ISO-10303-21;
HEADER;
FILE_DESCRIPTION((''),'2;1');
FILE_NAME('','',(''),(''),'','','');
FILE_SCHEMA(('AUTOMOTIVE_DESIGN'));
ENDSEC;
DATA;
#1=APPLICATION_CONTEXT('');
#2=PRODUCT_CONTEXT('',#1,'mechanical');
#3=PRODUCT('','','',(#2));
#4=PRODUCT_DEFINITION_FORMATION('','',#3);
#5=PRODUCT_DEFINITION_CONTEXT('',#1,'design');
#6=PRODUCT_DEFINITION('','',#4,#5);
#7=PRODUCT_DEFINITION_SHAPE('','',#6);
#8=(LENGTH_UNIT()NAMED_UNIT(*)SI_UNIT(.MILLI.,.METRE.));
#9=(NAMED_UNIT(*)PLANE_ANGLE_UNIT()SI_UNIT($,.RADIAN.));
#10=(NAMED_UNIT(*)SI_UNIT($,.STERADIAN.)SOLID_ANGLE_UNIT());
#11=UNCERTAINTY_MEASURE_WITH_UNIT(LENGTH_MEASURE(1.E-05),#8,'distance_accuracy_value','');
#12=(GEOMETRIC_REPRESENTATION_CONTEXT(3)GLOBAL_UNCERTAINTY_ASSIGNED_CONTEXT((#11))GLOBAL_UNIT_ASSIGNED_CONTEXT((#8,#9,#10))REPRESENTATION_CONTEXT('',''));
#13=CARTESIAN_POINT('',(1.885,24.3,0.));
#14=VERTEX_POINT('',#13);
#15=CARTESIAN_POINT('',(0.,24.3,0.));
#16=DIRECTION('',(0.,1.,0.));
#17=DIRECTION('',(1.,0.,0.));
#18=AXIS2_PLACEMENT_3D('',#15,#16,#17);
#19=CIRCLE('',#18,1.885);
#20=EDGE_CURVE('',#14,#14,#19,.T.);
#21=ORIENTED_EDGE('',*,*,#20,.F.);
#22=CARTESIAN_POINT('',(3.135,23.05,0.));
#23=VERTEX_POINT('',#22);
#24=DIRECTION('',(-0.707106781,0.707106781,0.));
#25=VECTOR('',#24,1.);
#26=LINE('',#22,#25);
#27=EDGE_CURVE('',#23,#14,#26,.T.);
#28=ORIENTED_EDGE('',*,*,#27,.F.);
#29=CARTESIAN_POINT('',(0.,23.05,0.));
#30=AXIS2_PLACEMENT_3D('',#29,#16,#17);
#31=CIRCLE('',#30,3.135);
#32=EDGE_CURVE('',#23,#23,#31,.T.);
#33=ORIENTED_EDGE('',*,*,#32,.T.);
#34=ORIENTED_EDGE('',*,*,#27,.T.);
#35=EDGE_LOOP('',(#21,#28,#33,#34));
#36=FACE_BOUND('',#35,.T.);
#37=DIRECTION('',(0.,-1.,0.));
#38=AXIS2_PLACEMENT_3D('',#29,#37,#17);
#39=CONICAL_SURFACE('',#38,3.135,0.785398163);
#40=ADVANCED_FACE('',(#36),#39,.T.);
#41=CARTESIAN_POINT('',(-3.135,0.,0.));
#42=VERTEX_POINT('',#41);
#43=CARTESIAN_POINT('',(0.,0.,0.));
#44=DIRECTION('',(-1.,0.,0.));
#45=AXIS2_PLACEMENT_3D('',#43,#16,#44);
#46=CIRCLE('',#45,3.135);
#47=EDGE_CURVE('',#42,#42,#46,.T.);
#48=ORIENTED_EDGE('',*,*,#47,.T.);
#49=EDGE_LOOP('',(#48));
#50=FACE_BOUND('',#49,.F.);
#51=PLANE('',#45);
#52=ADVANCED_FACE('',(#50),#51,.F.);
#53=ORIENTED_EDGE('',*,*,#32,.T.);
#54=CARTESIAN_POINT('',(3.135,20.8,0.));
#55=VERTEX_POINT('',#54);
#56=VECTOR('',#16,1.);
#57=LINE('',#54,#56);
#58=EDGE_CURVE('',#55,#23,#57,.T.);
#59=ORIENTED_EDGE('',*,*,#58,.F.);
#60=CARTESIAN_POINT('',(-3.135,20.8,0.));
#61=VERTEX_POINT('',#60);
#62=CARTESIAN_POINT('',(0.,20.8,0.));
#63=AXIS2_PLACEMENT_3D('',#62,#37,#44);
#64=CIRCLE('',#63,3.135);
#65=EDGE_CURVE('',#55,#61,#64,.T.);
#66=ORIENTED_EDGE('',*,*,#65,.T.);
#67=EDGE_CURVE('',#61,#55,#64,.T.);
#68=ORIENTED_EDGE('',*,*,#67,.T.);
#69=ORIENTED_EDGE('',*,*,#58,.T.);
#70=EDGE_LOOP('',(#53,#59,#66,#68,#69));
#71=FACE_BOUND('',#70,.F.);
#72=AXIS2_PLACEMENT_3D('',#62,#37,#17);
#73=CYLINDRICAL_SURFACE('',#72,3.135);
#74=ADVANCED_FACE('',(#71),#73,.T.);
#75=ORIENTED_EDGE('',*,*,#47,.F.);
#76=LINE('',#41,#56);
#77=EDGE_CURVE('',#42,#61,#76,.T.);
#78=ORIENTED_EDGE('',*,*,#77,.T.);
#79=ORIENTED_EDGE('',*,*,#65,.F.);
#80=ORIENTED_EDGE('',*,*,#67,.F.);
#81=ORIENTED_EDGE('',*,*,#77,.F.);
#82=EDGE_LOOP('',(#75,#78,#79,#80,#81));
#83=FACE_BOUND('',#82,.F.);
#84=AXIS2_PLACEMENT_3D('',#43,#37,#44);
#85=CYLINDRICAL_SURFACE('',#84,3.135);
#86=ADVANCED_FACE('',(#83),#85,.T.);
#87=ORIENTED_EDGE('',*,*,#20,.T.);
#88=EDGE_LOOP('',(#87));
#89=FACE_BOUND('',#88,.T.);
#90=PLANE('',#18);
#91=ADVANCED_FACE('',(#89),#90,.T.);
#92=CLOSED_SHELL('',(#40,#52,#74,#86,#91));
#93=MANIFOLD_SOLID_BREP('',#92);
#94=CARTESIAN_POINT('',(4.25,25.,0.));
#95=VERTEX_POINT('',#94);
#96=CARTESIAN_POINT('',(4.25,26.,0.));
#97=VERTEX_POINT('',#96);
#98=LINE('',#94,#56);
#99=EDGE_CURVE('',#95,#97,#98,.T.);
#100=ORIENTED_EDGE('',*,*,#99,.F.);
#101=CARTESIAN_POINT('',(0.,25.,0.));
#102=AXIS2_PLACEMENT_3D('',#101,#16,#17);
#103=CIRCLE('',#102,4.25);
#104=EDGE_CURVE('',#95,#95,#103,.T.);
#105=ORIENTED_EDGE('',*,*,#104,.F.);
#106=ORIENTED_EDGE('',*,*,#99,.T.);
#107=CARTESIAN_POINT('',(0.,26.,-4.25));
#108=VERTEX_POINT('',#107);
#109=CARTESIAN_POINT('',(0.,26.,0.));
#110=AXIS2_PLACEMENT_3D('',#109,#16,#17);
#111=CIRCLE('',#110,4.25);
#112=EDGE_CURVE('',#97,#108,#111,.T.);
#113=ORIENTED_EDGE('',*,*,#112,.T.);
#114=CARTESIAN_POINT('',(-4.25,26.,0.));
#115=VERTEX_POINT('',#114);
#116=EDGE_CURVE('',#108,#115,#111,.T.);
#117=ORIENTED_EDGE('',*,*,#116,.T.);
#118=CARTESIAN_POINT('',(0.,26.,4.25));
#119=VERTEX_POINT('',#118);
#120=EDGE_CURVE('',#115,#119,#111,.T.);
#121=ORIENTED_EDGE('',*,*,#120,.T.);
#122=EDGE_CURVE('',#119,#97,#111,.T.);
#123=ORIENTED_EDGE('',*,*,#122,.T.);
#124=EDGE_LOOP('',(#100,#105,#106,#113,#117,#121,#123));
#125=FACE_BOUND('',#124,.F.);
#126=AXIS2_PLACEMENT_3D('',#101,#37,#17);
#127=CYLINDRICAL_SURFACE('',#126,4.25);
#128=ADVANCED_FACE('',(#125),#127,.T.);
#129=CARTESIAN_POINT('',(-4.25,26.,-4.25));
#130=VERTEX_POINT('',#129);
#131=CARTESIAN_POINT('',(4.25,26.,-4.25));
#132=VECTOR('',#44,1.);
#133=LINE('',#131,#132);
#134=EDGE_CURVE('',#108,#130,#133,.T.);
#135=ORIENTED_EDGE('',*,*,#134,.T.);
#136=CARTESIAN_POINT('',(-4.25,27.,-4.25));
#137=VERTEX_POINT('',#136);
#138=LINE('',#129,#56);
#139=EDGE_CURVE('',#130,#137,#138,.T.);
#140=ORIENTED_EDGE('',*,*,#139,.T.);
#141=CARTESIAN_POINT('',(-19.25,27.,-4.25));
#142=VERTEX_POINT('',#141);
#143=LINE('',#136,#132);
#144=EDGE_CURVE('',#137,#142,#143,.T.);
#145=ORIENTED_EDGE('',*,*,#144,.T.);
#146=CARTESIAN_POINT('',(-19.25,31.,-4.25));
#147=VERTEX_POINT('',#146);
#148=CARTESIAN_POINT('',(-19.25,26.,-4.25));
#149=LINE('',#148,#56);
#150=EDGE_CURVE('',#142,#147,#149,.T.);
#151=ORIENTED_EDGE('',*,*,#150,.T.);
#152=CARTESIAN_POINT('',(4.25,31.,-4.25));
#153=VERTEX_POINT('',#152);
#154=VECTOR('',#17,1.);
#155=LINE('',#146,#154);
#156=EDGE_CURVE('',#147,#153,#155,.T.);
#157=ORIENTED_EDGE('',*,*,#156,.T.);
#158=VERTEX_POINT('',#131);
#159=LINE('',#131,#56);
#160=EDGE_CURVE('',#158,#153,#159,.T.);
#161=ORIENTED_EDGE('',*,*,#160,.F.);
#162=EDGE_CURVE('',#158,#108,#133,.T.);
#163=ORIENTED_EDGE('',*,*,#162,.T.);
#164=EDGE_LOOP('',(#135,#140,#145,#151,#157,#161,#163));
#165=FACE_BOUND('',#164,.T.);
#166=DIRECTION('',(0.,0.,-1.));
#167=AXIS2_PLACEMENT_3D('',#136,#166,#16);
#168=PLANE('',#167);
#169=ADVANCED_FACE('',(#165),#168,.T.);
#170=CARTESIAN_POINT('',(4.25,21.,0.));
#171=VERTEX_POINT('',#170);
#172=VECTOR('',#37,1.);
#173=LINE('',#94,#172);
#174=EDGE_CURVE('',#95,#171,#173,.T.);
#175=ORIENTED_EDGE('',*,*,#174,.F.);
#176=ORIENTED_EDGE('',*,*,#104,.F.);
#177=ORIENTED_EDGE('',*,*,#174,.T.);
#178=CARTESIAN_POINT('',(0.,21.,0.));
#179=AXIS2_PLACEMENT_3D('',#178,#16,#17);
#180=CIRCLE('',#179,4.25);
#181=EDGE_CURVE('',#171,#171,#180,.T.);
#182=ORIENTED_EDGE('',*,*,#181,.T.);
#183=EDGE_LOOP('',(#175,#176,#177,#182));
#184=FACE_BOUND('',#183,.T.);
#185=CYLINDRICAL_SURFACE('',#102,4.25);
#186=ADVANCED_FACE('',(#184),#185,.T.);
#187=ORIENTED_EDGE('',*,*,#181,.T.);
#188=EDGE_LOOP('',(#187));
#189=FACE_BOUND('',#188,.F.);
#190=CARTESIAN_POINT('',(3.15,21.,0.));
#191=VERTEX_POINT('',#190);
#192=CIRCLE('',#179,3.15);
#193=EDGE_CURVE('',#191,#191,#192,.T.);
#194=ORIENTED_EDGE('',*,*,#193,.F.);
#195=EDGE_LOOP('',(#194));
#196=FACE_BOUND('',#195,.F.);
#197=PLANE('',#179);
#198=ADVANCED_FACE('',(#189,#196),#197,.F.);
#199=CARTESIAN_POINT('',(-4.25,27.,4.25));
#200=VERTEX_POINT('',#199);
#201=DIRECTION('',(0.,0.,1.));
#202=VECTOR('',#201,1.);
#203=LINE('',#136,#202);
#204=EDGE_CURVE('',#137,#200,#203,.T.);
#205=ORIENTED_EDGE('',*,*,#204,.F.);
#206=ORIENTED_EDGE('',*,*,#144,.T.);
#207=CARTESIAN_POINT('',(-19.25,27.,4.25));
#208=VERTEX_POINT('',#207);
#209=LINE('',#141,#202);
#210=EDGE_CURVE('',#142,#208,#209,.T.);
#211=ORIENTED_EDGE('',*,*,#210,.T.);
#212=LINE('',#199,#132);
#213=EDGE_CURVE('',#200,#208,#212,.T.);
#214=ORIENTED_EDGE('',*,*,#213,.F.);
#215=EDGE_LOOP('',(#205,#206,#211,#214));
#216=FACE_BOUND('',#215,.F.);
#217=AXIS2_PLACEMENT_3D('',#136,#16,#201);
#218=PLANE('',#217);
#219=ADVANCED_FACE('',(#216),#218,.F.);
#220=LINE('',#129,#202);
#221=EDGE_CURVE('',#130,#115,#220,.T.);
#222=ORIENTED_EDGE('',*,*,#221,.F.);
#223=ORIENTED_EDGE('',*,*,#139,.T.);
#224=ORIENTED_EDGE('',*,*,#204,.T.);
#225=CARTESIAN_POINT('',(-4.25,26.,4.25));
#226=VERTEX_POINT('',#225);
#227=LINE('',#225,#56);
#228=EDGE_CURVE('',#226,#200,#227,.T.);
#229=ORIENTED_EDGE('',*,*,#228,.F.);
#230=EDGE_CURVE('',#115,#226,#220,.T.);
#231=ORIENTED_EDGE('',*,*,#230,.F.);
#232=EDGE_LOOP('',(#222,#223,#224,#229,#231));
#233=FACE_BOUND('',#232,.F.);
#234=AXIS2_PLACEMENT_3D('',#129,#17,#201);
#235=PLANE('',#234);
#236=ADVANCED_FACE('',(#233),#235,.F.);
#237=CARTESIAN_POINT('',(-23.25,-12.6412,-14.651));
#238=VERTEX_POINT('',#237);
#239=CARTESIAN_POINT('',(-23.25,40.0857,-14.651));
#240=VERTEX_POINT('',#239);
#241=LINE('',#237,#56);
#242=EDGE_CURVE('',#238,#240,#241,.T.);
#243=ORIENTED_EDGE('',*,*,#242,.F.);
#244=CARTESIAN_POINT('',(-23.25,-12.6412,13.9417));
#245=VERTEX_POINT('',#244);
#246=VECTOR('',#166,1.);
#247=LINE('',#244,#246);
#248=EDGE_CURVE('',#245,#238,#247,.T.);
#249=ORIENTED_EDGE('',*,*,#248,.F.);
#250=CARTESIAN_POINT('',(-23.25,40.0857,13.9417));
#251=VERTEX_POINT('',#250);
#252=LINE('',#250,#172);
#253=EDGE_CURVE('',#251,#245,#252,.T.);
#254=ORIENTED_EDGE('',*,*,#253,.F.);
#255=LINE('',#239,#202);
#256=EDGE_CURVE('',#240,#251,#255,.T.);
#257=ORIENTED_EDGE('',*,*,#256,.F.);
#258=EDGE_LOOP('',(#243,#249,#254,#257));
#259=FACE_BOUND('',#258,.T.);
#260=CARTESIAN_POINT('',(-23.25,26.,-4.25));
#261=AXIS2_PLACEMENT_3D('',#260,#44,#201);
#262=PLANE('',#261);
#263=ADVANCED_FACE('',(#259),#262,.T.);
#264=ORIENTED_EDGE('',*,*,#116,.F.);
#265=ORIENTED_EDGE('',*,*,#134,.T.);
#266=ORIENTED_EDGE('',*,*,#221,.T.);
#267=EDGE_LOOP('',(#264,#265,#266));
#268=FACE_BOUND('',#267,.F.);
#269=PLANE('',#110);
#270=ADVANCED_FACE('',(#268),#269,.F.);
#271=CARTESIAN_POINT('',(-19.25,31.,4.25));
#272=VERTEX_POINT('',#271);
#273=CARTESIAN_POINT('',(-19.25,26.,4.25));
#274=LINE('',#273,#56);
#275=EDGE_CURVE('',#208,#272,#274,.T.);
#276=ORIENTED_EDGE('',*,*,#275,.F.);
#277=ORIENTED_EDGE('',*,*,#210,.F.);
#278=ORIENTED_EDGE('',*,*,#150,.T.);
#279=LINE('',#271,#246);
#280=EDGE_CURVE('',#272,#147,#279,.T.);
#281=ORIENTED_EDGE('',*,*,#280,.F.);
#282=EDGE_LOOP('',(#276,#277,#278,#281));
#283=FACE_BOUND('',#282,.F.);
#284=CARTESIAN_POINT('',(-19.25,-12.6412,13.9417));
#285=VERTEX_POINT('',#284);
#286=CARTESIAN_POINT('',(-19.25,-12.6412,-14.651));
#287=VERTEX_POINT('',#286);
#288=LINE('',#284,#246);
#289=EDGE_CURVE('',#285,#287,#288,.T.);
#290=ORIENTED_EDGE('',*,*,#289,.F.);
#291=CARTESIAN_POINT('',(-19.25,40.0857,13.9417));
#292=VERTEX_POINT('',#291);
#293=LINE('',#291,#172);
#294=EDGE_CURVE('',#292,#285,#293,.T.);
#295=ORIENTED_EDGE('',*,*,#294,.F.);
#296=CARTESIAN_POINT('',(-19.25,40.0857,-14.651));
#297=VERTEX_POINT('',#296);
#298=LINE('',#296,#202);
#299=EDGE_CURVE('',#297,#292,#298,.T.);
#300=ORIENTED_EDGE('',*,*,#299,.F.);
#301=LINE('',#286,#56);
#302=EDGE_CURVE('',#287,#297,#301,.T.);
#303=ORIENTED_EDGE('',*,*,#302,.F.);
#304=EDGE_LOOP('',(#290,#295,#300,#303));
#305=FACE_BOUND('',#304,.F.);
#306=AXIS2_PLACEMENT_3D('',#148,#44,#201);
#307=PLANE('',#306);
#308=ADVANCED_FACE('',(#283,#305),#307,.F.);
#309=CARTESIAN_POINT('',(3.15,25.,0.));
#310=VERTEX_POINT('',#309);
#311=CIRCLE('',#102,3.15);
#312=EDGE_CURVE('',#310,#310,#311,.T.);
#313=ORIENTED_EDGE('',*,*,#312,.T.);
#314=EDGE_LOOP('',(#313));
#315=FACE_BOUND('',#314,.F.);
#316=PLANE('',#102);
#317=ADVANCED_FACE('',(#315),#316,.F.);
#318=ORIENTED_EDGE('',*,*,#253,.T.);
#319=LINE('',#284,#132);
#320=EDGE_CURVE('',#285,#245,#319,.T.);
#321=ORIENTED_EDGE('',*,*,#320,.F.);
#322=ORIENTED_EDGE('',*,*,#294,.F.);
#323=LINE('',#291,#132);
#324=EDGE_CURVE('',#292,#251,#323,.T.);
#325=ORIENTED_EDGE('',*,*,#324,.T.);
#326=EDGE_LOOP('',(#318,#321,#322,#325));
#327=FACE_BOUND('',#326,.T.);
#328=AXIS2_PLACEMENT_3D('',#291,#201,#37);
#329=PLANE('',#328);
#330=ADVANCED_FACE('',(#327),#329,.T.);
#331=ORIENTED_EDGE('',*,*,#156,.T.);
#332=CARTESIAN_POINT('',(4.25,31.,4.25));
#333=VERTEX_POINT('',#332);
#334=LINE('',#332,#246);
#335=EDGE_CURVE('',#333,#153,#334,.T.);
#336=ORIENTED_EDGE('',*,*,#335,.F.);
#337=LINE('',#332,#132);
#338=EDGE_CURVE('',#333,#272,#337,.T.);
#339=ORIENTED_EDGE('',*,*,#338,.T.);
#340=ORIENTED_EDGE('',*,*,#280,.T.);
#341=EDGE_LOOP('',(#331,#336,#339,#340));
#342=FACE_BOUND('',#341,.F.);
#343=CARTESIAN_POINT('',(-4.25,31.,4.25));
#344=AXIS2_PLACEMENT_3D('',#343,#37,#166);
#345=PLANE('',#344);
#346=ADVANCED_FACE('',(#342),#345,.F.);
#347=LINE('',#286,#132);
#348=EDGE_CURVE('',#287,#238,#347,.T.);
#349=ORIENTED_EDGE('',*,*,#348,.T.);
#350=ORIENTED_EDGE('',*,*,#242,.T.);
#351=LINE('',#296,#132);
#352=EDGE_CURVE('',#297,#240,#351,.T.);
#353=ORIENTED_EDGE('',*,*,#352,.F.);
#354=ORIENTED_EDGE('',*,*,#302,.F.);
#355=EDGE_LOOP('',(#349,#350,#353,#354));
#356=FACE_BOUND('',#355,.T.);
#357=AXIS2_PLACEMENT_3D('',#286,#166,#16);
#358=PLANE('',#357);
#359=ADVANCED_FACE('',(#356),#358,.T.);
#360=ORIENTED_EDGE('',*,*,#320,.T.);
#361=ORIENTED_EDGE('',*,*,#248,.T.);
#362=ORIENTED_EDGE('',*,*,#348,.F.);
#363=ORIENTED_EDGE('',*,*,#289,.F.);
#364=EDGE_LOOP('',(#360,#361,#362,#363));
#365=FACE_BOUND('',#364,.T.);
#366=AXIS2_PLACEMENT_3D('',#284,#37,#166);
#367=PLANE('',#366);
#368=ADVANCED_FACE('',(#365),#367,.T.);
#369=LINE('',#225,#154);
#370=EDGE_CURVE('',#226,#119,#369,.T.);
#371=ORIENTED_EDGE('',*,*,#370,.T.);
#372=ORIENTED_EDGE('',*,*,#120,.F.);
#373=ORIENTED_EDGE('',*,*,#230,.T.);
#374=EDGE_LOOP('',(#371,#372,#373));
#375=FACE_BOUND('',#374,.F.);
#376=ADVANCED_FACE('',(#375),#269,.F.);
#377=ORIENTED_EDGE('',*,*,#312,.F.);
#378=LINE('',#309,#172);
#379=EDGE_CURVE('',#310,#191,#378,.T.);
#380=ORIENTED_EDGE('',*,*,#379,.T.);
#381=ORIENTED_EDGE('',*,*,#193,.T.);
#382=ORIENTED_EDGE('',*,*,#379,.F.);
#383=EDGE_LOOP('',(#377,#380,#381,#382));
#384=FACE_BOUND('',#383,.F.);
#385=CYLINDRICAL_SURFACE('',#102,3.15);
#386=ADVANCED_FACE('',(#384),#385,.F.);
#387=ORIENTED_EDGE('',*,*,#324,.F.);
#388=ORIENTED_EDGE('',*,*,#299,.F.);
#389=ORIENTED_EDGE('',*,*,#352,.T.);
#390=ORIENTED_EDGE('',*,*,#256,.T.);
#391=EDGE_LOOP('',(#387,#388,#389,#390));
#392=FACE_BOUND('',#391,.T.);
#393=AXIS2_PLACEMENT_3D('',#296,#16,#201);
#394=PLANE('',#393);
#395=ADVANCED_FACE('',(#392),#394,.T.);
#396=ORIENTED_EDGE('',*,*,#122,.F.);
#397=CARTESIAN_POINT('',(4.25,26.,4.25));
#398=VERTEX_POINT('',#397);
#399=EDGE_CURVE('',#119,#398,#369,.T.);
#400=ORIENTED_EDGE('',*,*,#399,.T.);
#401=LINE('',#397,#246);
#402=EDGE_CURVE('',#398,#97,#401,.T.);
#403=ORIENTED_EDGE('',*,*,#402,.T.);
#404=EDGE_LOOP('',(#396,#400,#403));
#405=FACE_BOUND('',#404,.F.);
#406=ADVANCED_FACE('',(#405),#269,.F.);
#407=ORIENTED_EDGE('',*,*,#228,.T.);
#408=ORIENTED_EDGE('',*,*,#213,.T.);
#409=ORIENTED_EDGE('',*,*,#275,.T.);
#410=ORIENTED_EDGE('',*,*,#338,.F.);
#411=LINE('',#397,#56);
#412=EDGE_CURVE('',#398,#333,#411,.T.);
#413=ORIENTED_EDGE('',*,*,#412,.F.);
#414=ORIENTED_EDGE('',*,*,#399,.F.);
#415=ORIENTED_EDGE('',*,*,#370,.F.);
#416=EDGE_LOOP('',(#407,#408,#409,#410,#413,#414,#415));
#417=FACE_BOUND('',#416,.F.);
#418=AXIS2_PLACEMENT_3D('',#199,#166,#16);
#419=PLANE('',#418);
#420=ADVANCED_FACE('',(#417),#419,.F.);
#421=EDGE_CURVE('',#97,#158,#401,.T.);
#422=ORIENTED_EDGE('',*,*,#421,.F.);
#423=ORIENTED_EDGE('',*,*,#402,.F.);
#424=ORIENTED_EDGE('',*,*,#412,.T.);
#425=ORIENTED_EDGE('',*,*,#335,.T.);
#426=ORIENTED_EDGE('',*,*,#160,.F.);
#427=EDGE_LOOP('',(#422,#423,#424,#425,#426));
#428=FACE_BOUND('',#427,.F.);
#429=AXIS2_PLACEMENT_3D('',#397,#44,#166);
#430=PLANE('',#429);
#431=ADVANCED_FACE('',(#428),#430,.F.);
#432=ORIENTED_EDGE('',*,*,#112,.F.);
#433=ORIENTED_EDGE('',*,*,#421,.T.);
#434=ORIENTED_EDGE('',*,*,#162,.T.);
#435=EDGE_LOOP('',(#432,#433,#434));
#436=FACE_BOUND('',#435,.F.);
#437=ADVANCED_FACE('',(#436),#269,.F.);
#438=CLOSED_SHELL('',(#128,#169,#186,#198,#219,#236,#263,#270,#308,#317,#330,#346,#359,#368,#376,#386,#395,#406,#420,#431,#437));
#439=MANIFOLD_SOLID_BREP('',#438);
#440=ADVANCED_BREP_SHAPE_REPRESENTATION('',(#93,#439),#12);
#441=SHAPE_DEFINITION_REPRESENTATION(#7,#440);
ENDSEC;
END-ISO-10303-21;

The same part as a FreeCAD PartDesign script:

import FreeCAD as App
import Part
import Sketcher

V = App.Vector
Q = App.Units.Quantity


def edges_at(feature, points):
    """Names of the edges that pass closest to the given points."""
    edges = feature.Shape.Edges
    near = lambda p: min(range(len(edges)), key=lambda i: edges[i].distToShape(Part.Vertex(*p))[0])
    return sorted({f"Edge{near(p) + 1}" for p in points})


def add_polygon(sketch, points):
    """Adds a closed chain of lines whose ends are joined by coincident constraints."""
    first, n = sketch.GeometryCount, len(points)
    for a, b in zip(points, points[1:] + points[:1]):
        sketch.addGeometry(Part.LineSegment(App.Vector(*a, 0), App.Vector(*b, 0)), False)
    for i in range(n):
        sketch.addConstraint(Sketcher.Constraint("Coincident", first + i, 2, first + (i + 1) % n, 1))

doc = App.newDocument("Part")
body = doc.addObject("PartDesign::Body", "Body")
body.AllowCompound = True

# Sketch on XZ plane
sketch1 = body.newObject("Sketcher::SketchObject", "Sketch")
sketch1.AttachmentSupport = (doc.getObject("XZ_Plane"), [""])
sketch1.MapMode = "FlatFace"
sketch1.addGeometry(Part.Circle(V(0, 0, 0), V(0, 0, 1), 3.1), False)
sketch1.addConstraint([
    Sketcher.Constraint("Coincident", 0, 3, -1, 1),
    Sketcher.Constraint("Diameter", 0, Q("6.27 mm")),
])
pad1 = body.newObject("PartDesign::Pad", "Pad")
pad1.Profile = sketch1
pad1.Length = 25
pad1.Reversed = True

# Sketch on XZ plane
sketch2 = body.newObject("Sketcher::SketchObject", "Sketch001")
sketch2.AttachmentSupport = (doc.getObject("XZ_Plane"), [""])
sketch2.MapMode = "FlatFace"
sketch2.AttachmentOffset = App.Placement(V(0, 0, -25), App.Rotation())
sketch2.addGeometry(Part.Circle(V(0, 0, 0), V(0, 0, 1), 4.2), False)
sketch2.addConstraint([
    Sketcher.Constraint("Coincident", 0, 3, -1, 1),
    Sketcher.Constraint("Diameter", 0, Q("8.5 mm")),
])
pad2 = body.newObject("PartDesign::Pad", "Pad001")
pad2.Profile = sketch2
pad2.Length = 4

# Sketch on XZ plane
sketch3 = body.newObject("Sketcher::SketchObject", "Sketch002")
sketch3.AttachmentSupport = (doc.getObject("XZ_Plane"), [""])
sketch3.MapMode = "FlatFace"
sketch3.AttachmentOffset = App.Placement(V(0, 0, -25), App.Rotation())
sketch3.addGeometry(Part.Circle(V(0, 0, 0), V(0, 0, 1), 3.1), False)
sketch3.addConstraint([
    Sketcher.Constraint("Coincident", 0, 3, -1, 1),
    Sketcher.Constraint("Diameter", 0, Q("6.3 mm")),
])
pocket1 = body.newObject("PartDesign::Pocket", "Pocket")
pocket1.Profile = sketch3
pocket1.Length = 4.2
pocket1.Reversed = True

# Sketch on XZ plane
sketch4 = body.newObject("Sketcher::SketchObject", "Sketch003")
sketch4.AttachmentSupport = (doc.getObject("XZ_Plane"), [""])
sketch4.MapMode = "FlatFace"
sketch4.AttachmentOffset = App.Placement(V(0, 0, -20.8), App.Rotation())
sketch4.addGeometry(Part.Circle(V(0, 0, 0), V(0, 0, 1), 3.1), False)
sketch4.addConstraint([
    Sketcher.Constraint("Coincident", 0, 3, -1, 1),
    Sketcher.Constraint("Diameter", 0, Q("6.27 mm")),
])
pad3 = body.newObject("PartDesign::Pad", "Pad002")
pad3.Profile = sketch4
pad3.Length = 3.5
pad3.Reversed = True
doc.recompute()

chamfer = body.newObject("PartDesign::Chamfer", "Chamfer")
chamfer.Base = (pad3, edges_at(pad3, [(-3.135, 24.3, 0)]))
chamfer.Size = 1.25

# Sketch on XZ plane
sketch5 = body.newObject("Sketcher::SketchObject", "Sketch004")
sketch5.AttachmentSupport = (doc.getObject("XZ_Plane"), [""])
sketch5.MapMode = "FlatFace"
sketch5.AttachmentOffset = App.Placement(V(0, 0, -25), App.Rotation())
sketch5.addGeometry(Part.Circle(V(0, 0, 0), V(0, 0, 1), 4.2), False)
sketch5.addConstraint([
    Sketcher.Constraint("Coincident", 0, 3, -1, 1),
    Sketcher.Constraint("Diameter", 0, Q("8.5 mm")),
])
pad4 = body.newObject("PartDesign::Pad", "Pad003")
pad4.Profile = sketch5
pad4.Length = 1
pad4.Reversed = True

# Sketch on XZ plane
sketch6 = body.newObject("Sketcher::SketchObject", "Sketch005")
sketch6.AttachmentSupport = (doc.getObject("XZ_Plane"), [""])
sketch6.MapMode = "FlatFace"
sketch6.AttachmentOffset = App.Placement(V(0, 0, -26), App.Rotation())
add_polygon(sketch6, [(4, 4), (4, -4), (-4, -4), (-4, 4)])  # lines 0-3
sketch6.addConstraint([
    Sketcher.Constraint("Vertical", 0),
    Sketcher.Constraint("Horizontal", 1),
    Sketcher.Constraint("Vertical", 2),
    Sketcher.Constraint("Horizontal", 3),
    Sketcher.Constraint("Symmetric", 0, 2, 2, 2, -1, 1),
    Sketcher.Constraint("Equal", 3, 0),
    Sketcher.Constraint("DistanceX", 1, 2, 1, 1, Q("8.5 mm")),
])
pad5 = body.newObject("PartDesign::Pad", "Pad004")
pad5.Profile = sketch6
pad5.Length = 5
pad5.Reversed = True

# Sketch on YZ plane
sketch7 = body.newObject("Sketcher::SketchObject", "Sketch006")
sketch7.AttachmentSupport = (doc.getObject("YZ_Plane"), [""])
sketch7.MapMode = "FlatFace"
sketch7.AttachmentOffset = App.Placement(V(0, 0, -4.25), App.Rotation())
add_polygon(sketch7, [(27, -4.2), (27, 4.2), (31, 4.2), (31, -4.2)])  # lines 0-3
sketch7.addConstraint([
    Sketcher.Constraint("Vertical", 0),
    Sketcher.Constraint("Horizontal", 1),
    Sketcher.Constraint("Vertical", 2),
    Sketcher.Constraint("Horizontal", 3),
    Sketcher.Constraint("DistanceX", 1, 1, 1, 2, Q("4 mm")),
    Sketcher.Constraint("DistanceY", 0, 1, 0, 2, Q("8.5 mm")),
    Sketcher.Constraint("DistanceX", -1, 1, 0, 2, Q("27 mm")),
    Sketcher.Constraint("DistanceY", -1, 1, 0, 2, Q("4.25 mm")),
])
pad6 = body.newObject("PartDesign::Pad", "Pad005")
pad6.Profile = sketch7
pad6.Length = 15
pad6.Reversed = True

# Sketch on YZ plane
sketch8 = body.newObject("Sketcher::SketchObject", "Sketch007")
sketch8.AttachmentSupport = (doc.getObject("YZ_Plane"), [""])
sketch8.MapMode = "FlatFace"
sketch8.AttachmentOffset = App.Placement(V(0, 0, -19.25), App.Rotation())
add_polygon(sketch8, [(40, 14), (40, -15), (-13, -15), (-13, 14)])  # lines 0-3
sketch8.addConstraint([
    Sketcher.Constraint("Vertical", 0),
    Sketcher.Constraint("Horizontal", 1),
    Sketcher.Constraint("Vertical", 2),
    Sketcher.Constraint("Horizontal", 3),
    Sketcher.Constraint("DistanceX", 1, 2, 1, 1, Q("52.727 mm")),
    Sketcher.Constraint("DistanceY", 0, 2, 0, 1, Q("28.5927 mm")),
    Sketcher.Constraint("DistanceY", 0, 2, -1, 1, Q("14.651 mm")),
    Sketcher.Constraint("DistanceX", -1, 1, 0, 2, Q("40.0857 mm")),
])
pad7 = body.newObject("PartDesign::Pad", "Pad006")
pad7.Profile = sketch8
pad7.Length = 4
pad7.Reversed = True

doc.recompute()
